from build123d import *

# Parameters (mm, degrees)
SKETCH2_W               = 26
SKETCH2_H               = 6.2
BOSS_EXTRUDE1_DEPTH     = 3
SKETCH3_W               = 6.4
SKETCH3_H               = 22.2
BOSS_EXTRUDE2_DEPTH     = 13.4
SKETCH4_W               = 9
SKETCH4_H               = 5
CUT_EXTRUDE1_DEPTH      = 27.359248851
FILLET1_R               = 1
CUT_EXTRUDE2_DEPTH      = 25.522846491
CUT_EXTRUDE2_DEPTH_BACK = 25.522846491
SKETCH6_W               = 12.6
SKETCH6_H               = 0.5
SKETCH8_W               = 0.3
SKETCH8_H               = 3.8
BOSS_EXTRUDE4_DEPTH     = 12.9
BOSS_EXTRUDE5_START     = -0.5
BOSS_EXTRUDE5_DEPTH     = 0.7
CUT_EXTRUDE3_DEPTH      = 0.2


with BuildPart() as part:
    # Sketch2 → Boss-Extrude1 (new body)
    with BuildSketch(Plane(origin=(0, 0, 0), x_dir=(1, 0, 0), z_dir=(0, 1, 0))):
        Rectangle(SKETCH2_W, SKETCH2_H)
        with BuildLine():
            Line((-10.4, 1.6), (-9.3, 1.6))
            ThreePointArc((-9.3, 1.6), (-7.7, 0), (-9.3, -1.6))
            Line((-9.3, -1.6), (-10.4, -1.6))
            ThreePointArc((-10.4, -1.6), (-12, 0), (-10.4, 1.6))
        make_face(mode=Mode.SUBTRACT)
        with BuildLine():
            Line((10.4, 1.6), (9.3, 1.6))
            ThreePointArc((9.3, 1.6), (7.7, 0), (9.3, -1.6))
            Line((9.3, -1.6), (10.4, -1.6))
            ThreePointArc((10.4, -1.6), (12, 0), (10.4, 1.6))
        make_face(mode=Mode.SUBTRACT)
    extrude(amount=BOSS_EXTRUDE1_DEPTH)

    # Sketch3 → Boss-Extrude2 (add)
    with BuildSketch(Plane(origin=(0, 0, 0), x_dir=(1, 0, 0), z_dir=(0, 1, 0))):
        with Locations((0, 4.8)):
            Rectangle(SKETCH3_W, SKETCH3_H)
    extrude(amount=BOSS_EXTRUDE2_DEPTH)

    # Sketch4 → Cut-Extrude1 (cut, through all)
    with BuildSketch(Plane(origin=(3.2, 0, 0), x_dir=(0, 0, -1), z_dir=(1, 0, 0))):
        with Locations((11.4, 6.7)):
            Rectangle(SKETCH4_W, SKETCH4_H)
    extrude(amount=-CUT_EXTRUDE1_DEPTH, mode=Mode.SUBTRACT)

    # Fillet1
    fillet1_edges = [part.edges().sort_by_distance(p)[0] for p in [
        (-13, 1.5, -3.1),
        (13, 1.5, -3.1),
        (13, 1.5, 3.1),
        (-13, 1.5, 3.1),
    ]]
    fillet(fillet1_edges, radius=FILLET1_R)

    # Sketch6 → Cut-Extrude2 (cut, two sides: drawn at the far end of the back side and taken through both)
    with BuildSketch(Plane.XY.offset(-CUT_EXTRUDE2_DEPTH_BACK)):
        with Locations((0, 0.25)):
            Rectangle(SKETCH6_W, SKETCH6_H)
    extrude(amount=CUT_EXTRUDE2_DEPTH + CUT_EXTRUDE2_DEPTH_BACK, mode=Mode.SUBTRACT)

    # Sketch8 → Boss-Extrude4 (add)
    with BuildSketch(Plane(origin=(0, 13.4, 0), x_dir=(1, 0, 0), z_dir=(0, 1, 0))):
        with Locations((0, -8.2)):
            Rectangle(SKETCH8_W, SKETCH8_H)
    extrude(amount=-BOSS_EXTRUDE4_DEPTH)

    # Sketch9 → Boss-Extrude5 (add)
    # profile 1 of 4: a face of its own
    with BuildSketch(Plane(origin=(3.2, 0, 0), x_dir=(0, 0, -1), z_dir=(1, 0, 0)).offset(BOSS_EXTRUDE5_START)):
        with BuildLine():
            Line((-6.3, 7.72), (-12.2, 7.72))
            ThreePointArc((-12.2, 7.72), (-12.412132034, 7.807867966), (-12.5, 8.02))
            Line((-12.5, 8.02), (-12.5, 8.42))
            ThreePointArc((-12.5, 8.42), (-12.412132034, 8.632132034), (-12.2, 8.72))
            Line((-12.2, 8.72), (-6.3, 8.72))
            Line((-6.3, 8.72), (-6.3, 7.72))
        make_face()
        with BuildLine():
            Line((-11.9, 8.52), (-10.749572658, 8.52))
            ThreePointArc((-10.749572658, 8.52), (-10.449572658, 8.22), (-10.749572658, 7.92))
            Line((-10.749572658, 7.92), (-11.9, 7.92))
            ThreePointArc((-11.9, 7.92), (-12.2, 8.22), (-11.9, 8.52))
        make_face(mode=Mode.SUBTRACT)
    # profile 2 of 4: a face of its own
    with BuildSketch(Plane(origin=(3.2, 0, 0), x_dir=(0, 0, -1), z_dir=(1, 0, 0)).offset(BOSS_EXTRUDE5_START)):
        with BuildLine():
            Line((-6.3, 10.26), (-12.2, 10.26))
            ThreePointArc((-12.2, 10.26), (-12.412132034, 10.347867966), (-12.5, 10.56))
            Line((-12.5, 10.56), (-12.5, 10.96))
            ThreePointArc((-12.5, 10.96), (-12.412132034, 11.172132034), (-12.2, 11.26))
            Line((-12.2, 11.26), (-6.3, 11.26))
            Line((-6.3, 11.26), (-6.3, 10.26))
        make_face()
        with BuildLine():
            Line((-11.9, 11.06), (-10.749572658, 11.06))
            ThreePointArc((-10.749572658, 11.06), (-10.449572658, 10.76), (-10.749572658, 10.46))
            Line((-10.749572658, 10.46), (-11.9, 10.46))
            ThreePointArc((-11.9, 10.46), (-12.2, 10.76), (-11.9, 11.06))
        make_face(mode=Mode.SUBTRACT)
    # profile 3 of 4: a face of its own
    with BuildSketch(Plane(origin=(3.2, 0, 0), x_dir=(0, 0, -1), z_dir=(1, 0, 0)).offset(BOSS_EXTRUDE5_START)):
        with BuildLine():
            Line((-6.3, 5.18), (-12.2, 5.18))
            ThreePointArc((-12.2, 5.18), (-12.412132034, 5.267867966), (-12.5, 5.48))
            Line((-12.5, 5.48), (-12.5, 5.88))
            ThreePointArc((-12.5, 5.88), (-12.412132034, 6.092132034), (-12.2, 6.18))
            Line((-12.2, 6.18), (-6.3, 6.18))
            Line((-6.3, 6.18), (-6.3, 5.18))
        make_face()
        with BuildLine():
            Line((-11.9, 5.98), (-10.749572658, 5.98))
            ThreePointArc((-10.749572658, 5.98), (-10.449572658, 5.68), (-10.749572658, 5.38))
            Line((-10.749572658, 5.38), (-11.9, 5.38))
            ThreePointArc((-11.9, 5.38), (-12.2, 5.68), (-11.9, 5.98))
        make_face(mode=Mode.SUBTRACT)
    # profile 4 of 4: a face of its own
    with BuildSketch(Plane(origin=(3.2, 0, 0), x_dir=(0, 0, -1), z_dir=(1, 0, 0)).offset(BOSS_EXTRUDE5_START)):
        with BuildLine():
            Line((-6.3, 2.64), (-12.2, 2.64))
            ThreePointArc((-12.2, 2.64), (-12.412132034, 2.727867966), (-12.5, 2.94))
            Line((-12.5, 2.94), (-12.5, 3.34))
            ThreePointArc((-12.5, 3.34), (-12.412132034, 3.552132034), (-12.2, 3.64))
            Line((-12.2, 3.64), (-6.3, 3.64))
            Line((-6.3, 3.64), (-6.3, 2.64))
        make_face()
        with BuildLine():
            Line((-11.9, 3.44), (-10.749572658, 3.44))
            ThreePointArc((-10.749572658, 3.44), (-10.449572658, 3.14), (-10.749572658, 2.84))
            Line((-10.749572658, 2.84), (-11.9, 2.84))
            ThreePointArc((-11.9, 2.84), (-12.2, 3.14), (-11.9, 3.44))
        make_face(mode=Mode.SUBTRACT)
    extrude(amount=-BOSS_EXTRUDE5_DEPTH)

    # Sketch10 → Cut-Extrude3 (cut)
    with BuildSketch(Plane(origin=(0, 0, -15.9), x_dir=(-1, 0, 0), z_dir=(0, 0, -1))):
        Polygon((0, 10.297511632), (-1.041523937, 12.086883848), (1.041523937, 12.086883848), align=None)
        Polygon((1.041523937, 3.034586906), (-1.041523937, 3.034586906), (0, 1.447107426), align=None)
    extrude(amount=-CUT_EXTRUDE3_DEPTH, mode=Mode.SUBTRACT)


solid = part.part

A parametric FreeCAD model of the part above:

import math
import FreeCAD as App
import Part
import Sketcher
from FreeCAD import Vector


def edges_at(feature, points):
    """Names of the edges that pass closest to the given points."""
    edges = feature.Shape.Edges
    near = lambda p: min(range(len(edges)), key=lambda i: edges[i].distToShape(Part.Vertex(*p))[0])
    return sorted({f"Edge{near(p) + 1}" for p in points})

doc = App.newDocument("Part")
body = doc.addObject("PartDesign::Body", "Body")

sketch1 = doc.addObject("Sketcher::SketchObject", "Sketch")
body.addObject(sketch1)
sketch1.AttachmentSupport = (doc.XZ_Plane, [""])
sketch1.MapMode = "FlatFace"
sketch1.addGeometry([
    Part.LineSegment(Vector(-13, -3.1, 0), Vector(-13, 3.1, 0)),
    Part.LineSegment(Vector(-13, 3.1, 0), Vector(13, 3.1, 0)),
    Part.LineSegment(Vector(13, 3.1, 0), Vector(13, -3.1, 0)),
    Part.LineSegment(Vector(13, -3.1, 0), Vector(-13, -3.1, 0)),
    Part.ArcOfCircle(Part.Circle(Vector(-10.4, 0, 0), Vector(0, 0, 1), 1.6), math.radians(90), math.radians(270)),
    Part.LineSegment(Vector(-10.4, -1.6, 0), Vector(-9.3, -1.6, 0)),
    Part.ArcOfCircle(Part.Circle(Vector(-9.3, 0, 0), Vector(0, 0, 1), 1.6), math.radians(-90), math.radians(90)),
    Part.LineSegment(Vector(-9.3, 1.6, 0), Vector(-10.4, 1.6, 0)),
    Part.LineSegment(Vector(9.3, -1.6, 0), Vector(10.4, -1.6, 0)),
    Part.ArcOfCircle(Part.Circle(Vector(10.4, 0, 0), Vector(0, 0, 1), 1.6), math.radians(-90), math.radians(90)),
    Part.LineSegment(Vector(10.4, 1.6, 0), Vector(9.3, 1.6, 0)),
    Part.ArcOfCircle(Part.Circle(Vector(9.3, 0, 0), Vector(0, 0, 1), 1.6), math.radians(90), math.radians(270)),
], False)
sketch1.addConstraint([
    Sketcher.Constraint("Coincident", 0, 2, 1, 1),
    Sketcher.Constraint("Coincident", 1, 2, 2, 1),
    Sketcher.Constraint("Coincident", 2, 2, 3, 1),
    Sketcher.Constraint("Coincident", 3, 2, 0, 1),
    Sketcher.Constraint("Tangent", 4, 2, 5, 1),
    Sketcher.Constraint("Tangent", 5, 2, 6, 1),
    Sketcher.Constraint("Tangent", 6, 2, 7, 1),
    Sketcher.Constraint("Tangent", 7, 2, 4, 1),
    Sketcher.Constraint("Tangent", 8, 2, 9, 1),
    Sketcher.Constraint("Tangent", 9, 2, 10, 1),
    Sketcher.Constraint("Tangent", 10, 2, 11, 1),
    Sketcher.Constraint("Tangent", 11, 2, 8, 1),
    Sketcher.Constraint("Vertical", 0),
    Sketcher.Constraint("Horizontal", 1),
    Sketcher.Constraint("Vertical", 2),
    Sketcher.Constraint("Horizontal", 3),
    Sketcher.Constraint("Horizontal", 5),
    Sketcher.Constraint("Horizontal", 7),
    Sketcher.Constraint("Horizontal", 8),
    Sketcher.Constraint("Horizontal", 10),
    Sketcher.Constraint("Equal", 6, 9),
    Sketcher.Constraint("Symmetric", 4, 3, 9, 3, -1, 1),
    Sketcher.Constraint("Symmetric", 0, 2, 2, 2, -1, 1),
    Sketcher.Constraint("Symmetric", 6, 3, 11, 3, -2),
    Sketcher.Constraint("Radius", 4, 1.6),
    Sketcher.Constraint("DistanceX", 1, 1, 1, 2, 26.0),
    Sketcher.Constraint("DistanceX", 5, 1, 5, 2, 1.1),
    Sketcher.Constraint("DistanceY", 0, 1, 0, 2, 6.2),
    Sketcher.Constraint("DistanceX", 4, 3, -1, 1, 10.4),
])
pad1 = doc.addObject("PartDesign::Pad", "Pad")
body.addObject(pad1)
pad1.Profile = sketch1
pad1.Length = 3
pad1.Reversed = True

sketch2 = doc.addObject("Sketcher::SketchObject", "Sketch001")
body.addObject(sketch2)
sketch2.AttachmentSupport = (doc.XZ_Plane, [""])
sketch2.MapMode = "FlatFace"
sketch2.addGeometry([
    Part.LineSegment(Vector(-3, -16, 0), Vector(-3, 6, 0)),
    Part.LineSegment(Vector(-3, 6, 0), Vector(3, 6, 0)),
    Part.LineSegment(Vector(3, 6, 0), Vector(3, -16, 0)),
    Part.LineSegment(Vector(3, -16, 0), Vector(-3, -16, 0)),
], False)
sketch2.addConstraint([
    Sketcher.Constraint("Coincident", 0, 2, 1, 1),
    Sketcher.Constraint("Coincident", 1, 2, 2, 1),
    Sketcher.Constraint("Coincident", 2, 2, 3, 1),
    Sketcher.Constraint("Coincident", 3, 2, 0, 1),
    Sketcher.Constraint("Vertical", 0),
    Sketcher.Constraint("Horizontal", 1),
    Sketcher.Constraint("Vertical", 2),
    Sketcher.Constraint("Horizontal", 3),
    Sketcher.Constraint("DistanceX", 1, 1, 1, 2, 6.4),
    Sketcher.Constraint("DistanceY", 0, 1, 0, 2, 22.2),
    Sketcher.Constraint("DistanceX", 0, 2, -1, 1, 3.2),
    Sketcher.Constraint("DistanceY", -1, 1, 0, 2, 6.3),
])
pad2 = doc.addObject("PartDesign::Pad", "Pad001")
body.addObject(pad2)
pad2.Profile = sketch2
pad2.Length = 13.4
pad2.Reversed = True

sketch3 = doc.addObject("Sketcher::SketchObject", "Sketch002")
body.addObject(sketch3)
sketch3.AttachmentSupport = (doc.YZ_Plane, [""])
sketch3.MapMode = "FlatFace"
sketch3.AttachmentOffset = App.Placement(Vector(0, 0, 3.2), App.Rotation())
sketch3.addGeometry([
    Part.LineSegment(Vector(9.2, -6.9, 0), Vector(4.2, -6.9, 0)),
    Part.LineSegment(Vector(4.2, -6.9, 0), Vector(4.2, -15.9, 0)),
    Part.LineSegment(Vector(4.2, -15.9, 0), Vector(9.2, -15.9, 0)),
    Part.LineSegment(Vector(9.2, -15.9, 0), Vector(9.2, -6.9, 0)),
], False)
sketch3.addConstraint([
    Sketcher.Constraint("Coincident", 0, 2, 1, 1),
    Sketcher.Constraint("Coincident", 1, 2, 2, 1),
    Sketcher.Constraint("Coincident", 2, 2, 3, 1),
    Sketcher.Constraint("Coincident", 3, 2, 0, 1),
    Sketcher.Constraint("Horizontal", 0),
    Sketcher.Constraint("Vertical", 1),
    Sketcher.Constraint("Horizontal", 2),
    Sketcher.Constraint("Vertical", 3),
    Sketcher.Constraint("DistanceX", 0, 2, 0, 1, 5.0),
    Sketcher.Constraint("DistanceY", 1, 2, 1, 1, 9.0),
    Sketcher.Constraint("DistanceX", -1, 1, 0, 2, 4.2),
    Sketcher.Constraint("DistanceY", 0, 2, -1, 1, 6.9),
])
pocket1 = doc.addObject("PartDesign::Pocket", "Pocket")
body.addObject(pocket1)
pocket1.Profile = sketch3
pocket1.Type = "ThroughAll"
doc.recompute()

fillet = doc.addObject("PartDesign::Fillet", "Fillet")
body.addObject(fillet)
fillet.Base = (pocket1, edges_at(pocket1, [
    (-13, 1.5, -3.1),
    (13, 1.5, -3.1),
    (13, 1.5, 3.1),
    (-13, 1.5, 3.1),
]))
fillet.Radius = 1

sketch4 = doc.addObject("Sketcher::SketchObject", "Sketch003")
body.addObject(sketch4)
sketch4.AttachmentSupport = (doc.XY_Plane, [""])
sketch4.MapMode = "FlatFace"
sketch4.addGeometry([
    Part.LineSegment(Vector(-6.3, 0.5, 0), Vector(-6.3, 0, 0)),
    Part.LineSegment(Vector(-6.3, 0, 0), Vector(6.3, 0, 0)),
    Part.LineSegment(Vector(6.3, 0, 0), Vector(6.3, 0.5, 0)),
    Part.LineSegment(Vector(6.3, 0.5, 0), Vector(-6.3, 0.5, 0)),
], False)
sketch4.addConstraint([
    Sketcher.Constraint("Coincident", 0, 2, 1, 1),
    Sketcher.Constraint("Coincident", 1, 2, 2, 1),
    Sketcher.Constraint("Coincident", 2, 2, 3, 1),
    Sketcher.Constraint("Coincident", 3, 2, 0, 1),
    Sketcher.Constraint("Vertical", 0),
    Sketcher.Constraint("Horizontal", 1),
    Sketcher.Constraint("Vertical", 2),
    Sketcher.Constraint("Horizontal", 3),
    Sketcher.Constraint("Symmetric", 0, 2, 1, 2, -1, 1),
    Sketcher.Constraint("DistanceX", 1, 1, 1, 2, 12.6),
    Sketcher.Constraint("DistanceY", 0, 2, 0, 1, 0.5),
])
pocket2 = doc.addObject("PartDesign::Pocket", "Pocket001")
body.addObject(pocket2)
pocket2.Profile = sketch4
pocket2.Type = "ThroughAll"
pocket2.Midplane = True

sketch5 = doc.addObject("Sketcher::SketchObject", "Sketch004")
body.addObject(sketch5)
sketch5.AttachmentSupport = (doc.XZ_Plane, [""])
sketch5.MapMode = "FlatFace"
sketch5.AttachmentOffset = App.Placement(Vector(0, 0, -13.4), App.Rotation())
sketch5.addGeometry([
    Part.LineSegment(Vector(-0.15, 6.3, 0), Vector(-0.15, 10.1, 0)),
    Part.LineSegment(Vector(-0.15, 10.1, 0), Vector(0.15, 10.1, 0)),
    Part.LineSegment(Vector(0.15, 10.1, 0), Vector(0.15, 6.3, 0)),
    Part.LineSegment(Vector(0.15, 6.3, 0), Vector(-0.15, 6.3, 0)),
], False)
sketch5.addConstraint([
    Sketcher.Constraint("Coincident", 0, 2, 1, 1),
    Sketcher.Constraint("Coincident", 1, 2, 2, 1),
    Sketcher.Constraint("Coincident", 2, 2, 3, 1),
    Sketcher.Constraint("Coincident", 3, 2, 0, 1),
    Sketcher.Constraint("Vertical", 0),
    Sketcher.Constraint("Horizontal", 1),
    Sketcher.Constraint("Vertical", 2),
    Sketcher.Constraint("Horizontal", 3),
    Sketcher.Constraint("DistanceX", 1, 1, 1, 2, 0.3),
    Sketcher.Constraint("DistanceY", 0, 1, 0, 2, 3.8),
    Sketcher.Constraint("DistanceY", -1, 1, 0, 2, 10.1),
    Sketcher.Constraint("DistanceX", 0, 2, -1, 1, 0.15),
])
pad3 = doc.addObject("PartDesign::Pad", "Pad002")
body.addObject(pad3)
pad3.Profile = sketch5
pad3.Length = 12.9

sketch6 = doc.addObject("Sketcher::SketchObject", "Sketch005")
body.addObject(sketch6)
sketch6.AttachmentSupport = (doc.YZ_Plane, [""])
sketch6.MapMode = "FlatFace"
sketch6.AttachmentOffset = App.Placement(Vector(0, 0, 2.7), App.Rotation())
sketch6.addGeometry([
    Part.LineSegment(Vector(7.72, 12.2, 0), Vector(7.72, 6.3, 0)),
    Part.LineSegment(Vector(7.72, 6.3, 0), Vector(8.72, 6.3, 0)),
    Part.LineSegment(Vector(8.72, 6.3, 0), Vector(8.72, 12.2, 0)),
    Part.ArcOfCircle(Part.Circle(Vector(8.42, 12.2, 0), Vector(0, 0, 1), 0.3), math.radians(0), math.radians(90)),
    Part.LineSegment(Vector(8.42, 12.5, 0), Vector(8.02, 12.5, 0)),
    Part.ArcOfCircle(Part.Circle(Vector(8.02, 12.2, 0), Vector(0, 0, 1), 0.3), math.radians(90), math.radians(180)),
    Part.LineSegment(Vector(8.52, 11.9, 0), Vector(8.52, 10.75, 0)),
    Part.ArcOfCircle(Part.Circle(Vector(8.22, 10.75, 0), Vector(0, 0, 1), 0.3), math.radians(180), math.radians(360)),
    Part.LineSegment(Vector(7.92, 10.75, 0), Vector(7.92, 11.9, 0)),
    Part.ArcOfCircle(Part.Circle(Vector(8.22, 11.9, 0), Vector(0, 0, 1), 0.3), math.radians(0), math.radians(180)),
    Part.LineSegment(Vector(10.26, 12.2, 0), Vector(10.26, 6.3, 0)),
    Part.LineSegment(Vector(10.26, 6.3, 0), Vector(11.26, 6.3, 0)),
    Part.LineSegment(Vector(11.26, 6.3, 0), Vector(11.26, 12.2, 0)),
    Part.ArcOfCircle(Part.Circle(Vector(10.96, 12.2, 0), Vector(0, 0, 1), 0.3), math.radians(0), math.radians(90)),
    Part.LineSegment(Vector(10.96, 12.5, 0), Vector(10.56, 12.5, 0)),
    Part.ArcOfCircle(Part.Circle(Vector(10.56, 12.2, 0), Vector(0, 0, 1), 0.3), math.radians(90), math.radians(180)),
    Part.LineSegment(Vector(11.06, 11.9, 0), Vector(11.06, 10.75, 0)),
    Part.ArcOfCircle(Part.Circle(Vector(10.76, 10.75, 0), Vector(0, 0, 1), 0.3), math.radians(180), math.radians(360)),
    Part.LineSegment(Vector(10.46, 10.75, 0), Vector(10.46, 11.9, 0)),
    Part.ArcOfCircle(Part.Circle(Vector(10.76, 11.9, 0), Vector(0, 0, 1), 0.3), math.radians(0), math.radians(180)),
    Part.LineSegment(Vector(5.18, 12.2, 0), Vector(5.18, 6.3, 0)),
    Part.LineSegment(Vector(5.18, 6.3, 0), Vector(6.18, 6.3, 0)),
    Part.LineSegment(Vector(6.18, 6.3, 0), Vector(6.18, 12.2, 0)),
    Part.ArcOfCircle(Part.Circle(Vector(5.88, 12.2, 0), Vector(0, 0, 1), 0.3), math.radians(0), math.radians(90)),
    Part.LineSegment(Vector(5.88, 12.5, 0), Vector(5.48, 12.5, 0)),
    Part.ArcOfCircle(Part.Circle(Vector(5.48, 12.2, 0), Vector(0, 0, 1), 0.3), math.radians(90), math.radians(180)),
    Part.LineSegment(Vector(5.98, 11.9, 0), Vector(5.98, 10.75, 0)),
    Part.ArcOfCircle(Part.Circle(Vector(5.68, 10.75, 0), Vector(0, 0, 1), 0.3), math.radians(180), math.radians(360)),
    Part.LineSegment(Vector(5.38, 10.75, 0), Vector(5.38, 11.9, 0)),
    Part.ArcOfCircle(Part.Circle(Vector(5.68, 11.9, 0), Vector(0, 0, 1), 0.3), math.radians(0), math.radians(180)),
    Part.LineSegment(Vector(2.64, 12.2, 0), Vector(2.64, 6.3, 0)),
    Part.LineSegment(Vector(2.64, 6.3, 0), Vector(3.64, 6.3, 0)),
    Part.LineSegment(Vector(3.64, 6.3, 0), Vector(3.64, 12.2, 0)),
    Part.ArcOfCircle(Part.Circle(Vector(3.34, 12.2, 0), Vector(0, 0, 1), 0.3), math.radians(0), math.radians(90)),
    Part.LineSegment(Vector(3.34, 12.5, 0), Vector(2.94, 12.5, 0)),
    Part.ArcOfCircle(Part.Circle(Vector(2.94, 12.2, 0), Vector(0, 0, 1), 0.3), math.radians(90), math.radians(180)),
    Part.LineSegment(Vector(3.44, 11.9, 0), Vector(3.44, 10.75, 0)),
    Part.ArcOfCircle(Part.Circle(Vector(3.14, 10.75, 0), Vector(0, 0, 1), 0.3), math.radians(180), math.radians(360)),
    Part.LineSegment(Vector(2.84, 10.75, 0), Vector(2.84, 11.9, 0)),
    Part.ArcOfCircle(Part.Circle(Vector(3.14, 11.9, 0), Vector(0, 0, 1), 0.3), math.radians(0), math.radians(180)),
], False)
sketch6.addConstraint([
    Sketcher.Constraint("Coincident", 0, 2, 1, 1),
    Sketcher.Constraint("Coincident", 1, 2, 2, 1),
    Sketcher.Constraint("Tangent", 2, 2, 3, 1),
    Sketcher.Constraint("Tangent", 3, 2, 4, 1),
    Sketcher.Constraint("Tangent", 4, 2, 5, 1),
    Sketcher.Constraint("Tangent", 5, 2, 0, 1),
    Sketcher.Constraint("Tangent", 6, 2, 7, 2),
    Sketcher.Constraint("Tangent", 7, 1, 8, 1),
    Sketcher.Constraint("Tangent", 8, 2, 9, 2),
    Sketcher.Constraint("Tangent", 9, 1, 6, 1),
    Sketcher.Constraint("Coincident", 10, 2, 11, 1),
    Sketcher.Constraint("Coincident", 11, 2, 12, 1),
    Sketcher.Constraint("Tangent", 12, 2, 13, 1),
    Sketcher.Constraint("Tangent", 13, 2, 14, 1),
    Sketcher.Constraint("Tangent", 14, 2, 15, 1),
    Sketcher.Constraint("Tangent", 15, 2, 10, 1),
    Sketcher.Constraint("Tangent", 16, 2, 17, 2),
    Sketcher.Constraint("Tangent", 17, 1, 18, 1),
    Sketcher.Constraint("Tangent", 18, 2, 19, 2),
    Sketcher.Constraint("Tangent", 19, 1, 16, 1),
    Sketcher.Constraint("Coincident", 20, 2, 21, 1),
    Sketcher.Constraint("Coincident", 21, 2, 22, 1),
    Sketcher.Constraint("Tangent", 22, 2, 23, 1),
    Sketcher.Constraint("Tangent", 23, 2, 24, 1),
    Sketcher.Constraint("Tangent", 24, 2, 25, 1),
    Sketcher.Constraint("Tangent", 25, 2, 20, 1),
    Sketcher.Constraint("Tangent", 26, 2, 27, 2),
    Sketcher.Constraint("Tangent", 27, 1, 28, 1),
    Sketcher.Constraint("Tangent", 28, 2, 29, 2),
    Sketcher.Constraint("Tangent", 29, 1, 26, 1),
    Sketcher.Constraint("Coincident", 30, 2, 31, 1),
    Sketcher.Constraint("Coincident", 31, 2, 32, 1),
    Sketcher.Constraint("Tangent", 32, 2, 33, 1),
    Sketcher.Constraint("Tangent", 33, 2, 34, 1),
    Sketcher.Constraint("Tangent", 34, 2, 35, 1),
    Sketcher.Constraint("Tangent", 35, 2, 30, 1),
    Sketcher.Constraint("Tangent", 36, 2, 37, 2),
    Sketcher.Constraint("Tangent", 37, 1, 38, 1),
    Sketcher.Constraint("Tangent", 38, 2, 39, 2),
    Sketcher.Constraint("Tangent", 39, 1, 36, 1),
    Sketcher.Constraint("Vertical", 0),
    Sketcher.Constraint("Horizontal", 1),
    Sketcher.Constraint("Vertical", 2),
    Sketcher.Constraint("Horizontal", 4),
    Sketcher.Constraint("Vertical", 6),
    Sketcher.Constraint("Vertical", 8),
    Sketcher.Constraint("Vertical", 10),
    Sketcher.Constraint("Horizontal", 11),
    Sketcher.Constraint("Vertical", 12),
    Sketcher.Constraint("Horizontal", 14),
    Sketcher.Constraint("Vertical", 16),
    Sketcher.Constraint("Vertical", 18),
    Sketcher.Constraint("Vertical", 20),
    Sketcher.Constraint("Horizontal", 21),
    Sketcher.Constraint("Vertical", 22),
    Sketcher.Constraint("Horizontal", 24),
    Sketcher.Constraint("Vertical", 26),
    Sketcher.Constraint("Vertical", 28),
    Sketcher.Constraint("Vertical", 30),
    Sketcher.Constraint("Horizontal", 31),
    Sketcher.Constraint("Vertical", 32),
    Sketcher.Constraint("Horizontal", 34),
    Sketcher.Constraint("Vertical", 36),
    Sketcher.Constraint("Vertical", 38),
    Sketcher.Constraint("Equal", 3, 5),
    Sketcher.Constraint("Equal", 5, 7),
    Sketcher.Constraint("Equal", 9, 13),
    Sketcher.Constraint("Equal", 13, 15),
    Sketcher.Constraint("Equal", 15, 17),
    Sketcher.Constraint("Equal", 19, 23),
    Sketcher.Constraint("Equal", 23, 25),
    Sketcher.Constraint("Equal", 25, 27),
    Sketcher.Constraint("Equal", 29, 33),
    Sketcher.Constraint("Equal", 33, 35),
    Sketcher.Constraint("Equal", 35, 37),
    Sketcher.Constraint("Horizontal", 5, 3, 13, 3),
    Sketcher.Constraint("Horizontal", 7, 3, 17, 3),
    Sketcher.Constraint("Horizontal", 9, 3, 19, 3),
    Sketcher.Constraint("Horizontal", 15, 3, 23, 3),
    Sketcher.Constraint("Horizontal", 17, 3, 27, 3),
    Sketcher.Constraint("Horizontal", 19, 3, 29, 3),
    Sketcher.Constraint("Horizontal", 25, 3, 33, 3),
    Sketcher.Constraint("Horizontal", 27, 3, 37, 3),
    Sketcher.Constraint("Horizontal", 29, 3, 39, 3),
    Sketcher.Constraint("Horizontal", 1, 2, 10, 2),
    Sketcher.Constraint("Horizontal", 11, 2, 20, 2),
    Sketcher.Constraint("Horizontal", 21, 2, 30, 2),
    Sketcher.Constraint("Equal", 1, 11),
    Sketcher.Constraint("Equal", 11, 21),
    Sketcher.Constraint("Equal", 21, 31),
    Sketcher.Constraint("Radius", 3, 0.3),
    Sketcher.Constraint("DistanceX", 1, 1, 1, 2, 1.0),
    Sketcher.Constraint("DistanceY", 0, 2, 0, 1, 5.9),
    Sketcher.Constraint("DistanceY", -1, 1, 3, 3, 12.2),
    Sketcher.Constraint("DistanceY", -1, 1, 9, 3, 11.9),
    Sketcher.Constraint("DistanceX", 7, 3, 3, 3, 0.2),
    Sketcher.Constraint("DistanceX", 15, 3, 17, 3, 0.2),
    Sketcher.Constraint("DistanceX", 27, 3, 23, 3, 0.2),
    Sketcher.Constraint("DistanceX", 37, 3, 33, 3, 0.2),
    Sketcher.Constraint("DistanceX", -1, 1, 3, 3, 8.42),
    Sketcher.Constraint("DistanceX", -1, 1, 13, 3, 10.96),
    Sketcher.Constraint("DistanceX", -1, 1, 23, 3, 5.88),
    Sketcher.Constraint("DistanceX", -1, 1, 33, 3, 3.34),
    Sketcher.Constraint("DistanceY", 6, 2, 6, 1, 1.150427),
])
pad4 = doc.addObject("PartDesign::Pad", "Pad003")
body.addObject(pad4)
pad4.Profile = sketch6
pad4.Length = 0.7
pad4.Reversed = True

sketch7 = doc.addObject("Sketcher::SketchObject", "Sketch006")
body.addObject(sketch7)
sketch7.AttachmentSupport = (doc.XY_Plane, [""])
sketch7.MapMode = "FlatFace"
sketch7.AttachmentOffset = App.Placement(Vector(0, 0, -15.9), App.Rotation())
sketch7.addGeometry([
    Part.LineSegment(Vector(1, 12.1, 0), Vector(0, 10.3, 0)),
    Part.LineSegment(Vector(0, 10.3, 0), Vector(-1, 12.1, 0)),
    Part.LineSegment(Vector(-1, 12.1, 0), Vector(1, 12.1, 0)),
    Part.LineSegment(Vector(-1, 3, 0), Vector(1, 3, 0)),
    Part.LineSegment(Vector(1, 3, 0), Vector(0, 1.4, 0)),
    Part.LineSegment(Vector(0, 1.4, 0), Vector(-1, 3, 0)),
], False)
sketch7.addConstraint([
    Sketcher.Constraint("Coincident", 0, 2, 1, 1),
    Sketcher.Constraint("Coincident", 1, 2, 2, 1),
    Sketcher.Constraint("Coincident", 2, 2, 0, 1),
    Sketcher.Constraint("Coincident", 3, 2, 4, 1),
    Sketcher.Constraint("Coincident", 4, 2, 5, 1),
    Sketcher.Constraint("Coincident", 5, 2, 3, 1),
    Sketcher.Constraint("Horizontal", 2),
    Sketcher.Constraint("Horizontal", 3),
    Sketcher.Constraint("PointOnObject", 0, 2, -2),
    Sketcher.Constraint("PointOnObject", 4, 2, -2),
    Sketcher.Constraint("Vertical", 2, 2, 3, 2),
    Sketcher.Constraint("Vertical", 1, 2, 5, 2),
    Sketcher.Constraint("Equal", 0, 1),
    Sketcher.Constraint("DistanceX", 2, 1, 2, 2, 2.083048),
    Sketcher.Constraint("DistanceY", -1, 1, 0, 2, 10.297512),
    Sketcher.Constraint("DistanceY", 4, 2, 3, 2, 1.587479),
    Sketcher.Constraint("Distance", 0, 2.070417),
    Sketcher.Constraint("DistanceY", -1, 1, 3, 2, 3.034587),
])
pocket3 = doc.addObject("PartDesign::Pocket", "Pocket002")
body.addObject(pocket3)
pocket3.Profile = sketch7
pocket3.Length = 0.2
pocket3.Reversed = True

doc.recompute()
